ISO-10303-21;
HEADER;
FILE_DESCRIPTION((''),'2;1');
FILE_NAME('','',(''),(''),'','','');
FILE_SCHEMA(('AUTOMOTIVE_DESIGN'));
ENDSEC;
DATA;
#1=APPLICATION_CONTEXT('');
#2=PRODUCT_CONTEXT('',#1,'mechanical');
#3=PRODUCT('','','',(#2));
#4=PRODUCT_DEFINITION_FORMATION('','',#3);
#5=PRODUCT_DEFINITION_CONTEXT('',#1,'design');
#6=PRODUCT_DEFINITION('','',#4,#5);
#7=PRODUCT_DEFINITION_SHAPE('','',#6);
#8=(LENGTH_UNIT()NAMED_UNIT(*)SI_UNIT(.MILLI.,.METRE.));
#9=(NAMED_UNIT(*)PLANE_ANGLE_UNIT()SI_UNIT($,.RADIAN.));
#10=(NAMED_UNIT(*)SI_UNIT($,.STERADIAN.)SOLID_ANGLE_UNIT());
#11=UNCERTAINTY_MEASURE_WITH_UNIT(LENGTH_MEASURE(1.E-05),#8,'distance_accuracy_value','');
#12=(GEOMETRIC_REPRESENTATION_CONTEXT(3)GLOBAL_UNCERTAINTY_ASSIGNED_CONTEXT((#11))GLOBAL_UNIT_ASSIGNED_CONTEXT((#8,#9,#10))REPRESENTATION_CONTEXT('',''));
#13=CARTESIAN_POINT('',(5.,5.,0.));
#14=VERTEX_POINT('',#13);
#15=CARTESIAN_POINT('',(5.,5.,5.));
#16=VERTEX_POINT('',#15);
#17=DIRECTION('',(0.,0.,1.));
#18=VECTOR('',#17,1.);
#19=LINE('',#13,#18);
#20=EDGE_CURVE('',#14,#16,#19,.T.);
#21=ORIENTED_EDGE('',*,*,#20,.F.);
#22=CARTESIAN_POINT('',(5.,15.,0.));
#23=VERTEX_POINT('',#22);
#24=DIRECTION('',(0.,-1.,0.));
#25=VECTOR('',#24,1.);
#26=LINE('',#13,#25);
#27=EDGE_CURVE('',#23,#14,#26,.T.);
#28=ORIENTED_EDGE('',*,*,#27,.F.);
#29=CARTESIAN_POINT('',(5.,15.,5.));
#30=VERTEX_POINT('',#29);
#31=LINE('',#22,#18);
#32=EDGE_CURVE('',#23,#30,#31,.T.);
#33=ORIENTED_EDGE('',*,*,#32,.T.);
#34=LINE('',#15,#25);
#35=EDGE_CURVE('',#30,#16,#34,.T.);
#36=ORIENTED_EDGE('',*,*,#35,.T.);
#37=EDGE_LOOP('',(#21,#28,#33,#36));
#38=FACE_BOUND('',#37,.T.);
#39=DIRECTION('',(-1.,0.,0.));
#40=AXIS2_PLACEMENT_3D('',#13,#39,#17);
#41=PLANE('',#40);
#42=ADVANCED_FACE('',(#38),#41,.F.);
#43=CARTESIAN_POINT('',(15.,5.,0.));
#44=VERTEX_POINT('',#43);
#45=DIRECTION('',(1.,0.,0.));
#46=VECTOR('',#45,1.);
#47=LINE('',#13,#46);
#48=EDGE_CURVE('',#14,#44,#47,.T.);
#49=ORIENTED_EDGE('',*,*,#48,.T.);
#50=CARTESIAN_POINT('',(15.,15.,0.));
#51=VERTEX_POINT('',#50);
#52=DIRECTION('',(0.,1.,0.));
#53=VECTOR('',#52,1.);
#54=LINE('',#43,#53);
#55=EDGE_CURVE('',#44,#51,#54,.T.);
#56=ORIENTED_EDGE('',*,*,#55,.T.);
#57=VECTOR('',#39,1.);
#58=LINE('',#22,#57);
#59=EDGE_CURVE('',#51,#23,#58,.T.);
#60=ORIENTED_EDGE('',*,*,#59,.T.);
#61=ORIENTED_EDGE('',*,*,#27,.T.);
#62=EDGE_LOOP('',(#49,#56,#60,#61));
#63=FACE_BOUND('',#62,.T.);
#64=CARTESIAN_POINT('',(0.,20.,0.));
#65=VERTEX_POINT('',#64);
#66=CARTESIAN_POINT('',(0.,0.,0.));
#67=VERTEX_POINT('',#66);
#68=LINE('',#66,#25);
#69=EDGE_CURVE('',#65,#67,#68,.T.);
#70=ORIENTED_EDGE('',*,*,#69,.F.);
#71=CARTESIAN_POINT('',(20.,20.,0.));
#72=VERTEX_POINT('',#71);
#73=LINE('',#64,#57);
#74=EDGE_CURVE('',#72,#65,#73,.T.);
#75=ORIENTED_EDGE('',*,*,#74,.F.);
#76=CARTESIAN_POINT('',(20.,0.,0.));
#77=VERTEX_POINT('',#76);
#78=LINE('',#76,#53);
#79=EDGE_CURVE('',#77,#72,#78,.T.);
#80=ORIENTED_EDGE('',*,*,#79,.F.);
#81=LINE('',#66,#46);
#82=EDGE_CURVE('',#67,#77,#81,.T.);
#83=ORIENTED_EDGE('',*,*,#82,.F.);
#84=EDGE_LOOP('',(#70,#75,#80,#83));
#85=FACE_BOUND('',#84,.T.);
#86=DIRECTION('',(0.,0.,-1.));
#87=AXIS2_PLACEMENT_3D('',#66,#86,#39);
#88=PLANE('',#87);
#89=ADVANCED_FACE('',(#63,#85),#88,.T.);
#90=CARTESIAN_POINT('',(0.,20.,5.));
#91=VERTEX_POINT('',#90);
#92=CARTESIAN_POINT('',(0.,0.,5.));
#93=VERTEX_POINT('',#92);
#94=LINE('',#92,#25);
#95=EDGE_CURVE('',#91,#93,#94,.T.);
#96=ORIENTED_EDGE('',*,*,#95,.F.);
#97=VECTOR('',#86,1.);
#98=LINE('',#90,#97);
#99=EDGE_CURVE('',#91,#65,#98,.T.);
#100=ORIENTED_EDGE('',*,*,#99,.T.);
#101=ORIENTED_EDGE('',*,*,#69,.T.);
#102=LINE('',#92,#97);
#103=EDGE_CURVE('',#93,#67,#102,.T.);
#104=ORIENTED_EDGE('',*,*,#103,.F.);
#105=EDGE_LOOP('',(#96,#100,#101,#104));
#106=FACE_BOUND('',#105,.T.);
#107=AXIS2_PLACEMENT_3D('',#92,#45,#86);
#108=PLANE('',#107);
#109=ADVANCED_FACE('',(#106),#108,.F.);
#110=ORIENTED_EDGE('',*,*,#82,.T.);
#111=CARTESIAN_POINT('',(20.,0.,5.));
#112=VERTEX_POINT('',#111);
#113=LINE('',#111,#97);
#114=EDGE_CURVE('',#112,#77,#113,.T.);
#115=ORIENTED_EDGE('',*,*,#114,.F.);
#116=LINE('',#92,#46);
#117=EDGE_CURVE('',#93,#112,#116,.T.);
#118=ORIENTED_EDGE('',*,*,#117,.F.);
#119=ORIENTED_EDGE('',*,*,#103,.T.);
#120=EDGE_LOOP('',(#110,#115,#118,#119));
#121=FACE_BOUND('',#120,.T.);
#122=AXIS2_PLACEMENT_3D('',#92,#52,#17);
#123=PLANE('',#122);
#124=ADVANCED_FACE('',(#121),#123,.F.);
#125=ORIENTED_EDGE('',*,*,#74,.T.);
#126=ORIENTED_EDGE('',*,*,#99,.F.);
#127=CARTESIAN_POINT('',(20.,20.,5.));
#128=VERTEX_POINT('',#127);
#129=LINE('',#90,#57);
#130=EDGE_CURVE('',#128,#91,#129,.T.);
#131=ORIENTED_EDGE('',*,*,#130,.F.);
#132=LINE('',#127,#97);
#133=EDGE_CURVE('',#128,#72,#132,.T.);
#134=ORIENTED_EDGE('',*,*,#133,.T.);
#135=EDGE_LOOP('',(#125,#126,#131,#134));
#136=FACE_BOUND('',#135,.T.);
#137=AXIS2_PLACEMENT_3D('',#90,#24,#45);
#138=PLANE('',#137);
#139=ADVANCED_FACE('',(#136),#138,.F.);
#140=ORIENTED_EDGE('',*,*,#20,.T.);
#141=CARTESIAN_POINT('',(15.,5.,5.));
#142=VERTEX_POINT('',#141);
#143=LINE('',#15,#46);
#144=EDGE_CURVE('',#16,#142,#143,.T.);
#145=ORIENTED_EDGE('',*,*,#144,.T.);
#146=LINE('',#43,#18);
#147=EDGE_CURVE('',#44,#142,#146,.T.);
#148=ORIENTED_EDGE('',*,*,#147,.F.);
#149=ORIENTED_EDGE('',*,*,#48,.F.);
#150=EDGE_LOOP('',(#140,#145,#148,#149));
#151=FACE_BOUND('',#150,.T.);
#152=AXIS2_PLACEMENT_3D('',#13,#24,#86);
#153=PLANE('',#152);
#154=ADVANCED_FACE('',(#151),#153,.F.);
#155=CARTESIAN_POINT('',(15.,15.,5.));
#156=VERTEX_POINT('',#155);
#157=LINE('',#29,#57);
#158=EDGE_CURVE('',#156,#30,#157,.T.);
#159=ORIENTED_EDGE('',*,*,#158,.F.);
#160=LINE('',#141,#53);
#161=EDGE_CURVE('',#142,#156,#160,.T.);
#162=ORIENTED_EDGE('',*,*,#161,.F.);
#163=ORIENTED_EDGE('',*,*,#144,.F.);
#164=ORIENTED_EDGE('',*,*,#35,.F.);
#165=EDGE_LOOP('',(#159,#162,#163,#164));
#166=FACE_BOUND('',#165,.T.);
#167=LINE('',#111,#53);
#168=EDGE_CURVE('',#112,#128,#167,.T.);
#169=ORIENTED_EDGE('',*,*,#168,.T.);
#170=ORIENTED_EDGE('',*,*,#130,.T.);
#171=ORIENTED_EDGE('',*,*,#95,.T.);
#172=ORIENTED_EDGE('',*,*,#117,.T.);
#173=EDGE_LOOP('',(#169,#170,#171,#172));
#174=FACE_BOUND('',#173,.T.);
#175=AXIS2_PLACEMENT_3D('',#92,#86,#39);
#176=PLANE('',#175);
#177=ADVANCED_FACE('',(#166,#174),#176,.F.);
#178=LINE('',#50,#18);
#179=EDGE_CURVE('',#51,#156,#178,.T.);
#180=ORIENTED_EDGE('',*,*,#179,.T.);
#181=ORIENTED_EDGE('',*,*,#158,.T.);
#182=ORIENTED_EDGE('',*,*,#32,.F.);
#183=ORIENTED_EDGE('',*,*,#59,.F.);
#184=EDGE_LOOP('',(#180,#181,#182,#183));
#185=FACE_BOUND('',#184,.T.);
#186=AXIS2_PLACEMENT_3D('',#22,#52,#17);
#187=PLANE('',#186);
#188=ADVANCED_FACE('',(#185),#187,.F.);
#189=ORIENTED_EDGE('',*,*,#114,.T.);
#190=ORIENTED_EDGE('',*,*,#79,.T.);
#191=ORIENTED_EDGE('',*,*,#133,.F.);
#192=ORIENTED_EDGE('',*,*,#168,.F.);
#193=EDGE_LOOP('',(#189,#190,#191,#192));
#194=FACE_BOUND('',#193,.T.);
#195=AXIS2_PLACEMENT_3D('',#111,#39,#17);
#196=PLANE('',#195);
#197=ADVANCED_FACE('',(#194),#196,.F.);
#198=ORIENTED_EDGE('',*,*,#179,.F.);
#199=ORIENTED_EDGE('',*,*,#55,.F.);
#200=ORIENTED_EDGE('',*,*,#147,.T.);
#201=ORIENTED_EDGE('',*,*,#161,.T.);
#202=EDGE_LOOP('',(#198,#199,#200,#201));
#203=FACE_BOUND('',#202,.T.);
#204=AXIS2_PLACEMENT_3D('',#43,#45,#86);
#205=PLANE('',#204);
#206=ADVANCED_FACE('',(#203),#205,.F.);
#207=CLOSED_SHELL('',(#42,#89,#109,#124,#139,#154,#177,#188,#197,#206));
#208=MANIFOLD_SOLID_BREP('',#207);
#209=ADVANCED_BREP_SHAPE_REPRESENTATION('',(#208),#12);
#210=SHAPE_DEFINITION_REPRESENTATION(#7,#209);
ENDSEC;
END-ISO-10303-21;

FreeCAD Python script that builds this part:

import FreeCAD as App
import Part
import Sketcher

V = App.Vector

doc = App.newDocument("Part")
body = doc.addObject("PartDesign::Body", "Body")

# Sketch on XY plane
sketch1 = body.newObject("Sketcher::SketchObject", "Sketch")
sketch1.AttachmentSupport = (doc.getObject("XY_Plane"), [""])
sketch1.MapMode = "FlatFace"
sketch1.addGeometry([
    Part.LineSegment(V(0, 20, 0), V(0, 0, 0)),
    Part.LineSegment(V(0, 0, 0), V(20, 0, 0)),
    Part.LineSegment(V(20, 0, 0), V(20, 20, 0)),
    Part.LineSegment(V(20, 20, 0), V(0, 20, 0)),
], False)
sketch1.addConstraint([
    Sketcher.Constraint("Coincident", 0, 2, 1, 1),
    Sketcher.Constraint("Coincident", 1, 2, 2, 1),
    Sketcher.Constraint("Coincident", 2, 2, 3, 1),
    Sketcher.Constraint("Coincident", 3, 2, 0, 1),
    Sketcher.Constraint("Vertical", 0),
    Sketcher.Constraint("Horizontal", 1),
    Sketcher.Constraint("Vertical", 2),
    Sketcher.Constraint("Horizontal", 3),
    Sketcher.Constraint("Coincident", 0, 2, -1, 1),
    Sketcher.Constraint("Equal", 3, 0),
    Sketcher.Constraint("DistanceX", 1, 1, 1, 2, 20.0),
])
pad1 = body.newObject("PartDesign::Pad", "Pad")
pad1.Profile = sketch1
pad1.Length = 5

# Sketch on XY plane
sketch2 = body.newObject("Sketcher::SketchObject", "Sketch001")
sketch2.AttachmentSupport = (doc.getObject("XY_Plane"), [""])
sketch2.MapMode = "FlatFace"
sketch2.AttachmentOffset = App.Placement(V(0, 0, 5), App.Rotation())
sketch2.addGeometry([
    Part.LineSegment(V(5, 15, 0), V(5, 5, 0)),
    Part.LineSegment(V(5, 5, 0), V(15, 5, 0)),
    Part.LineSegment(V(15, 5, 0), V(15, 15, 0)),
    Part.LineSegment(V(15, 15, 0), V(5, 15, 0)),
], False)
sketch2.addConstraint([
    Sketcher.Constraint("Coincident", 0, 2, 1, 1),
    Sketcher.Constraint("Coincident", 1, 2, 2, 1),
    Sketcher.Constraint("Coincident", 2, 2, 3, 1),
    Sketcher.Constraint("Coincident", 3, 2, 0, 1),
    Sketcher.Constraint("Vertical", 0),
    Sketcher.Constraint("Horizontal", 1),
    Sketcher.Constraint("Vertical", 2),
    Sketcher.Constraint("Horizontal", 3),
    Sketcher.Constraint("Equal", 3, 0),
    Sketcher.Constraint("DistanceX", 1, 1, 1, 2, 10.0),
    Sketcher.Constraint("DistanceX", -1, 1, 0, 2, 5.0),
    Sketcher.Constraint("DistanceY", -1, 1, 0, 2, 5.0),
])
pocket1 = body.newObject("PartDesign::Pocket", "Pocket")
pocket1.Profile = sketch2
pocket1.Type = "ThroughAll"

doc.recompute()
